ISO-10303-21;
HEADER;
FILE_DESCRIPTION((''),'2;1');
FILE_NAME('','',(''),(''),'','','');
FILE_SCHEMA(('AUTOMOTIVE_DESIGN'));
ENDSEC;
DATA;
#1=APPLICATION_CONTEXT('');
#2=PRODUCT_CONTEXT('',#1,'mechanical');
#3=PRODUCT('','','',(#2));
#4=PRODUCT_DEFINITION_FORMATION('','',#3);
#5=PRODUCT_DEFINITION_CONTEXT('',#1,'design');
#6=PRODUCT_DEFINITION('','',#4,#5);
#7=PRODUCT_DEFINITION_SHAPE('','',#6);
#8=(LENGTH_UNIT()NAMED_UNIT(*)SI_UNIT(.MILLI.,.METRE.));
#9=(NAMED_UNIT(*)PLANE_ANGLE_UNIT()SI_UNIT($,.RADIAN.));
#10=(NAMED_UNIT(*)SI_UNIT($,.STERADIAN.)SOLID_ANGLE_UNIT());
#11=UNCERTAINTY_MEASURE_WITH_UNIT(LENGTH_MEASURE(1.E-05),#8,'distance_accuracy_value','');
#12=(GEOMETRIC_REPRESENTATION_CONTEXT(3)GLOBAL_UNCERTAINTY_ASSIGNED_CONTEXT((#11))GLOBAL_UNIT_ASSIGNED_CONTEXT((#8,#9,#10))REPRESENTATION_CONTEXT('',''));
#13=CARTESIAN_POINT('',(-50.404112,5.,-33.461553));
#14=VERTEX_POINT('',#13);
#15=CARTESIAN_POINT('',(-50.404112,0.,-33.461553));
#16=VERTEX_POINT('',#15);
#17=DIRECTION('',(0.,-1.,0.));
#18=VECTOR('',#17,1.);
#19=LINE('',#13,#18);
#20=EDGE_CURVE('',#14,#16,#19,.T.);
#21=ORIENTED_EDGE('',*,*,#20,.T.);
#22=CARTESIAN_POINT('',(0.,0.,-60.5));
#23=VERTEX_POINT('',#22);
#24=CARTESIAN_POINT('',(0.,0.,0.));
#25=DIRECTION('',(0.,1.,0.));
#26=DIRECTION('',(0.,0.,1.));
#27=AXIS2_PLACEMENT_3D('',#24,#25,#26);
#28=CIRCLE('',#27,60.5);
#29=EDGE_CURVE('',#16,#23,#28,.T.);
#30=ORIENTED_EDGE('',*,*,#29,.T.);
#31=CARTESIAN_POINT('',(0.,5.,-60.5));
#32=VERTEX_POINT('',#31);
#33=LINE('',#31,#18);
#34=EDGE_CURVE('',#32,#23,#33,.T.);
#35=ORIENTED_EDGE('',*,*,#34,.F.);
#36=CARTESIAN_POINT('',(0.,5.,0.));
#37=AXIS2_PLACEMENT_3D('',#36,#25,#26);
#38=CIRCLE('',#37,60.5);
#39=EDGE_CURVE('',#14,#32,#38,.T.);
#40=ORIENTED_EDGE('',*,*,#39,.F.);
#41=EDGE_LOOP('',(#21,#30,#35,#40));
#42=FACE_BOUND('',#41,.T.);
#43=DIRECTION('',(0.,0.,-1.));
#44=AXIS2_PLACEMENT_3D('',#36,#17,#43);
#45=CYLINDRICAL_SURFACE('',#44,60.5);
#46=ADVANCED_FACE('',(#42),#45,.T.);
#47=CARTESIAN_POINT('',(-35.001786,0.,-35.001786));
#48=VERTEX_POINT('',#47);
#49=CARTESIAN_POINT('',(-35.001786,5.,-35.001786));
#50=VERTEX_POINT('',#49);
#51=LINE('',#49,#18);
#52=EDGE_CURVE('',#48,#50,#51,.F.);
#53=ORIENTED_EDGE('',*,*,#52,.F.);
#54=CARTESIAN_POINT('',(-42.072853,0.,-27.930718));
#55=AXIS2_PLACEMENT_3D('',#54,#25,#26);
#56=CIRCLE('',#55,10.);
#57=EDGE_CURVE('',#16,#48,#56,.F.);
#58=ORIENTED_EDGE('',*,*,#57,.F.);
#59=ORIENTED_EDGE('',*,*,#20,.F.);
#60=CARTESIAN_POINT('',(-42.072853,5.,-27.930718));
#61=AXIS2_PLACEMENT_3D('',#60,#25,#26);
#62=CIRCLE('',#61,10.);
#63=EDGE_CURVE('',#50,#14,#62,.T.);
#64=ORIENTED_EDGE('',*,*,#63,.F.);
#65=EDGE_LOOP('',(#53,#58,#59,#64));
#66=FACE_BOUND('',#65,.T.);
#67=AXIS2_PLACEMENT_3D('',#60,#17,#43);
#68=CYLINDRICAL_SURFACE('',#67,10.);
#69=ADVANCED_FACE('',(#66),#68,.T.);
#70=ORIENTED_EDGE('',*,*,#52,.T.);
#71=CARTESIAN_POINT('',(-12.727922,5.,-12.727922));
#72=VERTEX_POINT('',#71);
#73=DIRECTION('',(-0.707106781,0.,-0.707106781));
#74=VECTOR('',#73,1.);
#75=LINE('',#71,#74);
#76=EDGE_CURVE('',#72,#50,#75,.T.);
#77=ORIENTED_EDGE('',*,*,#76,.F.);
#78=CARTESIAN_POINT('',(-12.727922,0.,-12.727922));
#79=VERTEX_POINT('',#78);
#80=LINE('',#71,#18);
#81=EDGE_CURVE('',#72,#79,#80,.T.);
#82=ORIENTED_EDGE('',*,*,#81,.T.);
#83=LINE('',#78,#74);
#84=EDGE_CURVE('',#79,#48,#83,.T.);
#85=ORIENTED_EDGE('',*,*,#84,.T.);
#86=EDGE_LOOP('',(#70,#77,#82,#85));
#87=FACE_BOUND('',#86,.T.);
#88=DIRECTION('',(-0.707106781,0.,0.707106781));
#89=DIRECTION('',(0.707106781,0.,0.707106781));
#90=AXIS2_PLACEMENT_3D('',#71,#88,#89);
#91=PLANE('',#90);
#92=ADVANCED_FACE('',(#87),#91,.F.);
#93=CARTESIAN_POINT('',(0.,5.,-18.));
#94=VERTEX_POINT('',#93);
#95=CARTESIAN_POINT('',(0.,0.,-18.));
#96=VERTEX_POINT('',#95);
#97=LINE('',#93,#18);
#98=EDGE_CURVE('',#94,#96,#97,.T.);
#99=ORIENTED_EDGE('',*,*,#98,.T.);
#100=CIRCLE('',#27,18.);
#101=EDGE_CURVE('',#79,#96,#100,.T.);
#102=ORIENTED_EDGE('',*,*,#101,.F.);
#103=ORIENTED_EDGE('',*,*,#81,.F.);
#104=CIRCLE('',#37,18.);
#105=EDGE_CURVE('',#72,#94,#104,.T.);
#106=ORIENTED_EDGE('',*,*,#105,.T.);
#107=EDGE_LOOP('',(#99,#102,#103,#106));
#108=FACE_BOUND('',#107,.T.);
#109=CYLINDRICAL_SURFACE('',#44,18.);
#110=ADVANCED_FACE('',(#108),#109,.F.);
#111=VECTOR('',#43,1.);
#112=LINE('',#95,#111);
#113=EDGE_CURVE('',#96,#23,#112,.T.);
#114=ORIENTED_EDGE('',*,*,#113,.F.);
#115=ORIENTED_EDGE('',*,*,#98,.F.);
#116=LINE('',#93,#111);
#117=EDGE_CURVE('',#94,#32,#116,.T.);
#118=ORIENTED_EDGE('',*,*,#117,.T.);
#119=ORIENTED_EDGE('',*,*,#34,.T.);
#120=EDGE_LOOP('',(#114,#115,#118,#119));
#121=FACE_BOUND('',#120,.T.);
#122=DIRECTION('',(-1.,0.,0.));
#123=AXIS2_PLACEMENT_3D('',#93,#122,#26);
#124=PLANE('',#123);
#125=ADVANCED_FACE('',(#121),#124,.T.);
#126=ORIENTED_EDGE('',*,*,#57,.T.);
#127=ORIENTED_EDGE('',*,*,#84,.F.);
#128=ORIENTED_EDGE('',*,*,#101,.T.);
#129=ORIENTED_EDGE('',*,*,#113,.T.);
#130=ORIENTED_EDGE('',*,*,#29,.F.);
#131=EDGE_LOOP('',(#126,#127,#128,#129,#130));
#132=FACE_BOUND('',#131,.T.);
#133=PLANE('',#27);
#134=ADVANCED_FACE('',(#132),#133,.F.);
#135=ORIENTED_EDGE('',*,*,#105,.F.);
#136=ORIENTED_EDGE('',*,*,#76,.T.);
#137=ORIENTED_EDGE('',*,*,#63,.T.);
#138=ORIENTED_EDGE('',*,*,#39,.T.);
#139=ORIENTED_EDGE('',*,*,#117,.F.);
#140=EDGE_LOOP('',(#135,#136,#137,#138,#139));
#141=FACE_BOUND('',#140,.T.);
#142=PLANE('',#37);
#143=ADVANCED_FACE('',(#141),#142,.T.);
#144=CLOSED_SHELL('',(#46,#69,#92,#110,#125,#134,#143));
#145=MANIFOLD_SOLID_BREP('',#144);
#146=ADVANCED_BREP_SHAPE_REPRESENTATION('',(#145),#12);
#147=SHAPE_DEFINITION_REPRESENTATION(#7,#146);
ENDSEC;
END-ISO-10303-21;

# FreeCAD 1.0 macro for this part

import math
import FreeCAD as App
import Part
import Sketcher
from FreeCAD import Vector
Q = App.Units.Quantity


def edges_at(feature, points):
    """Names of the edges that pass closest to the given points."""
    edges = feature.Shape.Edges
    near = lambda p: min(range(len(edges)), key=lambda i: edges[i].distToShape(Part.Vertex(*p))[0])
    return sorted({f"Edge{near(p) + 1}" for p in points})

doc = App.newDocument("Part")
body = doc.addObject("PartDesign::Body", "Body")

sketch1 = body.newObject("Sketcher::SketchObject", "Sketch")
sketch1.AttachmentSupport = (doc.getObject("XZ_Plane"), [""])
sketch1.MapMode = "FlatFace"
sketch1.addGeometry(Part.LineSegment(Vector(-13, -13, 0), Vector(-43, -43, 0)), False)
sketch1.addGeometry(Part.ArcOfCircle(Part.Circle(Vector(0, 0, 0), Vector(0, 0, 1), 60), math.radians(-90), math.radians(225)), False)
sketch1.addGeometry(Part.LineSegment(Vector(0, -60, 0), Vector(0, -18, 0)), False)
sketch1.addGeometry(Part.ArcOfCircle(Part.Circle(Vector(0, 0, 0), Vector(0, 0, 1), 18), math.radians(-90), math.radians(225)), False)
sketch1.addConstraint(Sketcher.Constraint("Coincident", 0, 2, 1, 2))
sketch1.addConstraint(Sketcher.Constraint("Coincident", 1, 1, 2, 1))
sketch1.addConstraint(Sketcher.Constraint("Coincident", 2, 2, 3, 1))
sketch1.addConstraint(Sketcher.Constraint("Coincident", 3, 2, 0, 1))
sketch1.addConstraint(Sketcher.Constraint("Vertical", 2))
sketch1.addConstraint(Sketcher.Constraint("Coincident", 1, 3, -1, 1))
sketch1.addConstraint(Sketcher.Constraint("Coincident", 3, 3, -1, 1))
sketch1.addConstraint(Sketcher.Constraint("PointOnObject", 1, 1, -2))
sketch1.addConstraint(Sketcher.Constraint("Radius", 3, 18.0))
sketch1.addConstraint(Sketcher.Constraint("Radius", 1, 60.5))
sketch1.addConstraint(Sketcher.Constraint("Angle", 0, Q("-135 deg")))
sketch1.addConstraint(Sketcher.Constraint("DistanceX", 0, 2, -1, 1, 42.77996))
pad1 = body.newObject("PartDesign::Pad", "Pad")
pad1.Profile = sketch1
pad1.Length = 5
pad1.Reversed = True
doc.recompute()

fillet = body.newObject("PartDesign::Fillet", "Fillet")
fillet.Base = (pad1, edges_at(pad1, [(-42.78, 2.5, -42.78)]))
fillet.Radius = 10

doc.recompute()
